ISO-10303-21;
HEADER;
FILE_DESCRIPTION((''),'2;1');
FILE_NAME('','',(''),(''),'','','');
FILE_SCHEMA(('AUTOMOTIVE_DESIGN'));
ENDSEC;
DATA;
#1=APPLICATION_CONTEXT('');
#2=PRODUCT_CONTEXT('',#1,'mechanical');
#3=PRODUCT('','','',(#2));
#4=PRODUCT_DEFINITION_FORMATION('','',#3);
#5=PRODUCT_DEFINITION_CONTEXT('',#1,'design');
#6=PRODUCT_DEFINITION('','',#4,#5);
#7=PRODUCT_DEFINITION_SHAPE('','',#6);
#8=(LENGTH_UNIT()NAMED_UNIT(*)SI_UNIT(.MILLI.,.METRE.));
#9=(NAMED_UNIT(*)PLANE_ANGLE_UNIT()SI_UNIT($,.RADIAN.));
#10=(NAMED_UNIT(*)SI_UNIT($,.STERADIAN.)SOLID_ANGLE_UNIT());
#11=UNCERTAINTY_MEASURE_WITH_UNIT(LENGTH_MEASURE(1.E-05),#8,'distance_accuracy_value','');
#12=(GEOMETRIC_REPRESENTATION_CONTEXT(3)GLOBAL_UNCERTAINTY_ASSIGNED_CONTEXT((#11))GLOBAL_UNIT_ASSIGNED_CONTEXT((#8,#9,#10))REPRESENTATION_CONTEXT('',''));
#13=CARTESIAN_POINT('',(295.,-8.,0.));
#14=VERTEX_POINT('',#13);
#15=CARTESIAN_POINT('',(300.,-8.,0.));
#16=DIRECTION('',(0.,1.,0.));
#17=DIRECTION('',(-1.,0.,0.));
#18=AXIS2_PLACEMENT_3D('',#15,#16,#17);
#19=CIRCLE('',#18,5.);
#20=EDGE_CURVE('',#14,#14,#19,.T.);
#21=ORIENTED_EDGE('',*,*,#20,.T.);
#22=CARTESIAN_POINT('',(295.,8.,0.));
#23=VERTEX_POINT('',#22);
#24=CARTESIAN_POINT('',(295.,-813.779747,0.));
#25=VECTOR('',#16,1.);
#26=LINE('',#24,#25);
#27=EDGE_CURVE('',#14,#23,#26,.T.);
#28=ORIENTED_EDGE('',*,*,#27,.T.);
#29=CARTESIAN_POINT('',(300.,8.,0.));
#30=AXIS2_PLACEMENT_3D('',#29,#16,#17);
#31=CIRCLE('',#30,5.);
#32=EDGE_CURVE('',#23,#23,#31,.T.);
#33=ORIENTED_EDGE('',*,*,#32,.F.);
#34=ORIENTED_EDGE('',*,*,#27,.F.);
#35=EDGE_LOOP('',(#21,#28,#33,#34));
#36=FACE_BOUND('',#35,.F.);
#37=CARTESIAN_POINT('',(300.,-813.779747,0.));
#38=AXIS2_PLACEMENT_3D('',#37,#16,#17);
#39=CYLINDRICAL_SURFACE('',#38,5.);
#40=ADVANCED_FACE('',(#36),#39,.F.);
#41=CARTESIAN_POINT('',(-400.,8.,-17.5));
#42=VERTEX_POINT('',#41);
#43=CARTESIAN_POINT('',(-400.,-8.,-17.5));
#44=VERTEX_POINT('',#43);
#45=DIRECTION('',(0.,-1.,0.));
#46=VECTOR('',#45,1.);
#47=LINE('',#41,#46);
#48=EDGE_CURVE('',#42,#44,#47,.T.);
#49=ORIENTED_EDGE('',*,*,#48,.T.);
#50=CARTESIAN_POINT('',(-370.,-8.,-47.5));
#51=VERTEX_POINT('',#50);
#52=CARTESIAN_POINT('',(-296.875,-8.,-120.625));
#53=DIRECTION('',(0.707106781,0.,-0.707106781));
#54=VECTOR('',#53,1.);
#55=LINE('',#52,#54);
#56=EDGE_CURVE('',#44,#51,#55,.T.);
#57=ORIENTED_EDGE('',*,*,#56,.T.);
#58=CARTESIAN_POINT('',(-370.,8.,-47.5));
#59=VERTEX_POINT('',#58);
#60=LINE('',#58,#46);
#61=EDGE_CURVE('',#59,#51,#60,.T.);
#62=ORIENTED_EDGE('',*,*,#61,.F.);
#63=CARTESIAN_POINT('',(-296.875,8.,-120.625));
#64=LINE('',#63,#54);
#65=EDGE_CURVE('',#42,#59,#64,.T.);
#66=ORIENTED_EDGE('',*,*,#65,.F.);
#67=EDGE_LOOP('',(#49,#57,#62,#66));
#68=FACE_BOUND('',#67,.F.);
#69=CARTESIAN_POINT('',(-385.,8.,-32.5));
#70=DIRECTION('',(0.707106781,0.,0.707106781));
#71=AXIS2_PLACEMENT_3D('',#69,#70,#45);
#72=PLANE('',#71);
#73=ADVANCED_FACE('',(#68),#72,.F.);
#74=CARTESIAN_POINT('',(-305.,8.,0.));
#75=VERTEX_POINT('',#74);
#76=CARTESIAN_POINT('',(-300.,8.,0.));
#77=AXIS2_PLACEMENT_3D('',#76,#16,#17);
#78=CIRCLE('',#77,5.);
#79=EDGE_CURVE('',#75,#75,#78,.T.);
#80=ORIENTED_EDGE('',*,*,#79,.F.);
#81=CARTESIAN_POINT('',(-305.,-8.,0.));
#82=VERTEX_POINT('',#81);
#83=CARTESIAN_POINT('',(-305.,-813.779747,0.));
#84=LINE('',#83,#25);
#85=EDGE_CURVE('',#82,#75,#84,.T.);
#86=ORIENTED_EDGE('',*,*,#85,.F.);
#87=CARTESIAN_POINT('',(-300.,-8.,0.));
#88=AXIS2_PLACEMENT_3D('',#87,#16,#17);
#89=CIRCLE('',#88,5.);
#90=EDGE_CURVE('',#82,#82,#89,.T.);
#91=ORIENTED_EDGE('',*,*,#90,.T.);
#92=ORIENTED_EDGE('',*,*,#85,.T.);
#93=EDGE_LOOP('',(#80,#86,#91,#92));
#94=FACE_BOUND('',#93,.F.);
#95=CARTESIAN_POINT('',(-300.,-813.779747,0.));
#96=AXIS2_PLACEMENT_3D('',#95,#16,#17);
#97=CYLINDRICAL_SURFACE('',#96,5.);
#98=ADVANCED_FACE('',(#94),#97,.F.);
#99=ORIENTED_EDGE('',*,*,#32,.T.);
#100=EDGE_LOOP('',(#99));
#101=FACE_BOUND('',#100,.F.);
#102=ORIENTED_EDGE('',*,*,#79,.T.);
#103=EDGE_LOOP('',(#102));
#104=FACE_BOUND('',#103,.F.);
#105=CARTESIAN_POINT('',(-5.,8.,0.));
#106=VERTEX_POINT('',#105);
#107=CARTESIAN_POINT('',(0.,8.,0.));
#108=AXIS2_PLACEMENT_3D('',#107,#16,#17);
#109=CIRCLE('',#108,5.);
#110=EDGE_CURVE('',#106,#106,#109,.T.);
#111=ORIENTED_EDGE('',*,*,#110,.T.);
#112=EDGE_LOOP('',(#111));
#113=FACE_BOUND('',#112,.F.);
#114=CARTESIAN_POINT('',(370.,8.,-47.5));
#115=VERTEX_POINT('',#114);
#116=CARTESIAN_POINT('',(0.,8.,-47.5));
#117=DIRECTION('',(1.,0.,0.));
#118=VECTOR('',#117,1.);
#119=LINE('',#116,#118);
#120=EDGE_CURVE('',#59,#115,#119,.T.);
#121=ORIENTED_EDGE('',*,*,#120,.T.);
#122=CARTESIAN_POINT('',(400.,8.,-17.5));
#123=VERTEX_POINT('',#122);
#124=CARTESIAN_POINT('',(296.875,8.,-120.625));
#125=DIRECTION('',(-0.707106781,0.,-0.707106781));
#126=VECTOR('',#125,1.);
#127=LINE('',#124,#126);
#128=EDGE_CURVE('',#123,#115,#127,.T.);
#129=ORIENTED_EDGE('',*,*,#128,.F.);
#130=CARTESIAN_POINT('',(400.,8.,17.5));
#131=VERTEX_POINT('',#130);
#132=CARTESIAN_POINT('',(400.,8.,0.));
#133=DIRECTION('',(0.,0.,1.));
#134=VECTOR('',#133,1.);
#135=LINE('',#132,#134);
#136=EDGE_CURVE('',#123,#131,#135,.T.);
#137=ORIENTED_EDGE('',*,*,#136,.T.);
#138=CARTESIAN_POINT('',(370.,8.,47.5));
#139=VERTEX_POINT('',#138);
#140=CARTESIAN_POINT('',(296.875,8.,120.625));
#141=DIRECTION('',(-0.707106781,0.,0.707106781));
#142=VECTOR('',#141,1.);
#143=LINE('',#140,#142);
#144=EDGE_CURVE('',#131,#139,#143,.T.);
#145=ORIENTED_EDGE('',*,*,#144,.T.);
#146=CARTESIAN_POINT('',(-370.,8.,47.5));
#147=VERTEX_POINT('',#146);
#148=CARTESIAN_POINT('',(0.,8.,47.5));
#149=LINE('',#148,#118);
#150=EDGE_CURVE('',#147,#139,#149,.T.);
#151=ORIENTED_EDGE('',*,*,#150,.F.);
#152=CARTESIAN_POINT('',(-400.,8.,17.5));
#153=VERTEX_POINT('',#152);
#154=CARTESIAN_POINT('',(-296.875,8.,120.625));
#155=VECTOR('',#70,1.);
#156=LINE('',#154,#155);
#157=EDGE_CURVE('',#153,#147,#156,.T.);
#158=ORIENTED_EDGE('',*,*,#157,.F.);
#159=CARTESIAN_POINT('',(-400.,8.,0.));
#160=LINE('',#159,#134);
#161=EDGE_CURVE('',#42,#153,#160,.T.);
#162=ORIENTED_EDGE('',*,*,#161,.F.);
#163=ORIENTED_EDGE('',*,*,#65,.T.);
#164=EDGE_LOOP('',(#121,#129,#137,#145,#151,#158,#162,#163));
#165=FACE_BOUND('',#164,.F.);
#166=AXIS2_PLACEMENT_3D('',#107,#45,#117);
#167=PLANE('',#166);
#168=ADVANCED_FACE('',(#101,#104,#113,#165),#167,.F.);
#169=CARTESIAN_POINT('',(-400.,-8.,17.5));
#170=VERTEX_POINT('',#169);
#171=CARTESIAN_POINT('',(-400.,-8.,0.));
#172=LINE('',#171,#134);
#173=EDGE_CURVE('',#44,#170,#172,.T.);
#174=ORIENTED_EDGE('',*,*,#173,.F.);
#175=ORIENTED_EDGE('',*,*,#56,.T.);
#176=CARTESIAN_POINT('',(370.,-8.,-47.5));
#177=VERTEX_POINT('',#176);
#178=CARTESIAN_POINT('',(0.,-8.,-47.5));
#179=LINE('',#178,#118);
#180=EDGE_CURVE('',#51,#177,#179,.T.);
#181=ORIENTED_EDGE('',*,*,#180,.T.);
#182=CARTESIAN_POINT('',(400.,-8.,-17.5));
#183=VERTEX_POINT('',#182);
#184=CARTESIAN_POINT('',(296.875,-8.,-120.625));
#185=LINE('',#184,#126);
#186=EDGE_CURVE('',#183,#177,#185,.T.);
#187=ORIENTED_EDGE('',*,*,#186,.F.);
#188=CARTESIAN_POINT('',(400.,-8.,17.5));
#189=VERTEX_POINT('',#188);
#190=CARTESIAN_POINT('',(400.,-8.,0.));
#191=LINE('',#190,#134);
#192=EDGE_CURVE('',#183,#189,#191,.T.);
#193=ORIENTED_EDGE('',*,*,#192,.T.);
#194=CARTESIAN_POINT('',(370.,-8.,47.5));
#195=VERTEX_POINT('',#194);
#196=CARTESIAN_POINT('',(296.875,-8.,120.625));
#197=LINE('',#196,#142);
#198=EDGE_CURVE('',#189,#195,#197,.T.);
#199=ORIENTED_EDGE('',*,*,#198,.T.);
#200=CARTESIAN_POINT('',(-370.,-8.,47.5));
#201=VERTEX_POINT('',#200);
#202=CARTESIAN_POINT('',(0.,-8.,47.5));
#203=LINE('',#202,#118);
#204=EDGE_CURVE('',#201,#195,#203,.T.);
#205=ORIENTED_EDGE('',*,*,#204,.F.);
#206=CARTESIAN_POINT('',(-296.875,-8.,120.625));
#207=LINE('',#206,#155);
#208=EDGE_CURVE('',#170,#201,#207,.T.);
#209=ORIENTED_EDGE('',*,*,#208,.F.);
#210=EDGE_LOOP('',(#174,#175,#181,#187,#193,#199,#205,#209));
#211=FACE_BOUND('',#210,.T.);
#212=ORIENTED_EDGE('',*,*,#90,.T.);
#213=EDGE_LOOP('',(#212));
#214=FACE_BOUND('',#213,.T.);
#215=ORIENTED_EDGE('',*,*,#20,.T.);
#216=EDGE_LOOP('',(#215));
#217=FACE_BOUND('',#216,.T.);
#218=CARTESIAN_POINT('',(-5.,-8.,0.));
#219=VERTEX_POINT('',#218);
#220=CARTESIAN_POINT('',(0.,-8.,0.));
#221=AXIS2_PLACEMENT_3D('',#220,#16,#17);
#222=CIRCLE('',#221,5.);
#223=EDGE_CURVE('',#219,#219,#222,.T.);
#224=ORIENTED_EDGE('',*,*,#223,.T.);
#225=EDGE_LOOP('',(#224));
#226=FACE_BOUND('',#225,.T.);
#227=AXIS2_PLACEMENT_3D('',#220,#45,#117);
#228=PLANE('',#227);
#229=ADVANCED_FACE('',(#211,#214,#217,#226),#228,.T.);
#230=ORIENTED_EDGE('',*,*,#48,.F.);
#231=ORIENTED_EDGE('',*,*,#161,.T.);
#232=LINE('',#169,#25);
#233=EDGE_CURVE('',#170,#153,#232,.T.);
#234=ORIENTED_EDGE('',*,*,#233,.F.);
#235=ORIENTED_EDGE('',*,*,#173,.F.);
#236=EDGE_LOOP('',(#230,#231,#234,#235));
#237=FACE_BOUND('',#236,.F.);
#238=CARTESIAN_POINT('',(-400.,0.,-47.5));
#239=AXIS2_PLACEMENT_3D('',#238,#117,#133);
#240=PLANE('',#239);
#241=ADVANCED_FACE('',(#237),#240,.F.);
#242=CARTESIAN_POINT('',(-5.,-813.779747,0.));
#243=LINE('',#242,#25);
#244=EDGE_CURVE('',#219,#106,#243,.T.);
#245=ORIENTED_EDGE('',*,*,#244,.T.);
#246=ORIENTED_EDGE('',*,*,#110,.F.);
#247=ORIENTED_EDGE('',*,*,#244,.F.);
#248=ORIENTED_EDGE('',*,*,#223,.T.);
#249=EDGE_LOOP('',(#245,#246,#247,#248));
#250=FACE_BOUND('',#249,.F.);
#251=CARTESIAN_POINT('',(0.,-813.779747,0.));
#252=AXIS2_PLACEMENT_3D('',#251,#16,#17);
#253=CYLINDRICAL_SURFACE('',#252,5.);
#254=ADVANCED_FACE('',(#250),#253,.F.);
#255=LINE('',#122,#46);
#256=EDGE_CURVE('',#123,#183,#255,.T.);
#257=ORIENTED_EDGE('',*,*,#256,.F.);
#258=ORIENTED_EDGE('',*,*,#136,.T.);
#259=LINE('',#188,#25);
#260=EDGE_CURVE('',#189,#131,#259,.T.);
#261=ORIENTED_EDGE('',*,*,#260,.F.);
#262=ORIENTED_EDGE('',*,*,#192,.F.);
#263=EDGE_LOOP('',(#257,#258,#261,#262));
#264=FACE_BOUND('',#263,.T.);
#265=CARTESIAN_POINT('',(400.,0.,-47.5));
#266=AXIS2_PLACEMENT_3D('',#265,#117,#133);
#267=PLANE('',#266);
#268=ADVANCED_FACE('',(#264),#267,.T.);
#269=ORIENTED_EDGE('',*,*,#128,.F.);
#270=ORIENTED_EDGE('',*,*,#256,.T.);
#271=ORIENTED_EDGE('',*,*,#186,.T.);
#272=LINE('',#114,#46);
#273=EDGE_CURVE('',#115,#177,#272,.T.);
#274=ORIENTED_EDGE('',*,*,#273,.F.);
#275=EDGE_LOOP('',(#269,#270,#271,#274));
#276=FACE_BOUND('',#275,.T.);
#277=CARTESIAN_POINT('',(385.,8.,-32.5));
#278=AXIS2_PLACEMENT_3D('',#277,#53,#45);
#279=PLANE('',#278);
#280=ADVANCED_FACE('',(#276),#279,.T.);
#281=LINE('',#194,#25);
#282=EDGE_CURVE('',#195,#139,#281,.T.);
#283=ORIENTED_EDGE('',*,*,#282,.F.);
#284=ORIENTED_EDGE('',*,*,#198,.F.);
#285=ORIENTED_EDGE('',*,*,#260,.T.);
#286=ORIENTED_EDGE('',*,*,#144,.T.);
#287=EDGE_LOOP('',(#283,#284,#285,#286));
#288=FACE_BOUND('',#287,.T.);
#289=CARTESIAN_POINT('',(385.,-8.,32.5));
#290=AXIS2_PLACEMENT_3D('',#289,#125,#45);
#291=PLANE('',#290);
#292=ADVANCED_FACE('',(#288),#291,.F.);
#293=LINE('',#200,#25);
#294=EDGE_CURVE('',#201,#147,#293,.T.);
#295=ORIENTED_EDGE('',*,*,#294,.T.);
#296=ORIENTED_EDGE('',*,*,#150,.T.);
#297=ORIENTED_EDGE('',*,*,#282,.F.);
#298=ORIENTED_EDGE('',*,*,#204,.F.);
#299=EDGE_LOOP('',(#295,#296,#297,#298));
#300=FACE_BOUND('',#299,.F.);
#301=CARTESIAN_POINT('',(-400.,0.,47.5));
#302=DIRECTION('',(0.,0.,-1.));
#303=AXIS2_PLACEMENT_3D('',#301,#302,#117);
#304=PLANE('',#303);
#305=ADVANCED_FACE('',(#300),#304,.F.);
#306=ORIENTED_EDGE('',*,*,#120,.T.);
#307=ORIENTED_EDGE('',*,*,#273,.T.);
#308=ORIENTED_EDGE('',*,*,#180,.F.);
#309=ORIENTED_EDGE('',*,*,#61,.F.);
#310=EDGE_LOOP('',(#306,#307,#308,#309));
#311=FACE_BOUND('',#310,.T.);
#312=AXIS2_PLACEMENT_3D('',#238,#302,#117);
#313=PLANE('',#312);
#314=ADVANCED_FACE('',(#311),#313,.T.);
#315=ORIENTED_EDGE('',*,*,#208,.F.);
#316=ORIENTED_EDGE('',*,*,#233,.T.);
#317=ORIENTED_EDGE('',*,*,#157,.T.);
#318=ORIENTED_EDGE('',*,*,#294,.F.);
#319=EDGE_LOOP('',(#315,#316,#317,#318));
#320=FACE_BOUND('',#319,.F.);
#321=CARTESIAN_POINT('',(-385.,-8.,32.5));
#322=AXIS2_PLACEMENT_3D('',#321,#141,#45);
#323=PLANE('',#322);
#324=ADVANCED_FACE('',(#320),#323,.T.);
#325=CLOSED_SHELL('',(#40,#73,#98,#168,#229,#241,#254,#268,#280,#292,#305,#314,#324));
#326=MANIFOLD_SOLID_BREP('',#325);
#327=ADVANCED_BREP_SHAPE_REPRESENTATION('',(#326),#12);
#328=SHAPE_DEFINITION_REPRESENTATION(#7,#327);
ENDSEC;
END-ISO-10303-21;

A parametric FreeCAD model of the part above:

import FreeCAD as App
import Part
import Sketcher

V = App.Vector


def edges_at(feature, points):
    """Names of the edges that pass closest to the given points."""
    edges = feature.Shape.Edges
    near = lambda p: min(range(len(edges)), key=lambda i: edges[i].distToShape(Part.Vertex(*p))[0])
    return sorted({f"Edge{near(p) + 1}" for p in points})

doc = App.newDocument("Part")
body = doc.addObject("PartDesign::Body", "Body")

# Sketch on XZ plane
sketch1 = doc.addObject("Sketcher::SketchObject", "Sketch")
body.addObject(sketch1)
sketch1.AttachmentSupport = (doc.XZ_Plane, [""])
sketch1.MapMode = "FlatFace"
sketch1.addGeometry(Part.LineSegment(V(-400, 48, 0), V(-400, -48, 0)), False)
sketch1.addGeometry(Part.LineSegment(V(-400, -48, 0), V(400, -48, 0)), False)
sketch1.addGeometry(Part.LineSegment(V(400, -48, 0), V(400, 48, 0)), False)
sketch1.addGeometry(Part.LineSegment(V(400, 48, 0), V(-400, 48, 0)), False)
sketch1.addConstraint(Sketcher.Constraint("Coincident", 0, 2, 1, 1))
sketch1.addConstraint(Sketcher.Constraint("Coincident", 1, 2, 2, 1))
sketch1.addConstraint(Sketcher.Constraint("Coincident", 2, 2, 3, 1))
sketch1.addConstraint(Sketcher.Constraint("Coincident", 3, 2, 0, 1))
sketch1.addConstraint(Sketcher.Constraint("Vertical", 0))
sketch1.addConstraint(Sketcher.Constraint("Horizontal", 1))
sketch1.addConstraint(Sketcher.Constraint("Vertical", 2))
sketch1.addConstraint(Sketcher.Constraint("Horizontal", 3))
sketch1.addConstraint(Sketcher.Constraint("Symmetric", 0, 2, 2, 2, -1, 1))
sketch1.addConstraint(Sketcher.Constraint("DistanceX", 1, 1, 1, 2, 800.0))
sketch1.addConstraint(Sketcher.Constraint("DistanceY", 0, 2, 0, 1, 95.0))
pad1 = doc.addObject("PartDesign::Pad", "Pad")
body.addObject(pad1)
pad1.Profile = sketch1
pad1.Length = 16
pad1.Midplane = True
doc.recompute()

chamfer = doc.addObject("PartDesign::Chamfer", "Chamfer")
body.addObject(chamfer)
chamfer.Base = (pad1, edges_at(pad1, [
    (-400, 0, -47.5),
    (-400, 0, 47.5),
    (400, 0, -47.5),
    (400, 0, 47.5),
]))
chamfer.Size = 30

# Sketch on XZ plane
sketch2 = doc.addObject("Sketcher::SketchObject", "Sketch001")
body.addObject(sketch2)
sketch2.AttachmentSupport = (doc.XZ_Plane, [""])
sketch2.MapMode = "FlatFace"
sketch2.AttachmentOffset = App.Placement(V(0, 0, 8), App.Rotation())
sketch2.addGeometry(Part.Circle(V(0, 0, 0), V(0, 0, 1), 5), False)
sketch2.addGeometry(Part.Circle(V(300, 0, 0), V(0, 0, 1), 5), False)
sketch2.addGeometry(Part.Circle(V(-300, 0, 0), V(0, 0, 1), 5), False)
sketch2.addConstraint(Sketcher.Constraint("Coincident", 0, 3, -1, 1))
sketch2.addConstraint(Sketcher.Constraint("Equal", 0, 1))
sketch2.addConstraint(Sketcher.Constraint("Equal", 1, 2))
sketch2.addConstraint(Sketcher.Constraint("Symmetric", 1, 3, 2, 3, -1, 1))
sketch2.addConstraint(Sketcher.Constraint("PointOnObject", 1, 3, -1))
sketch2.addConstraint(Sketcher.Constraint("Diameter", 0, 10.0))
sketch2.addConstraint(Sketcher.Constraint("DistanceX", -1, 1, 1, 3, 300.0))
doc.recompute()
hole = doc.addObject("PartDesign::Hole", "Hole")
body.addObject(hole)
hole.Profile = sketch2
hole.ThreadType = "None"
hole.Diameter = 10
hole.DepthType = "ThroughAll"

doc.recompute()
